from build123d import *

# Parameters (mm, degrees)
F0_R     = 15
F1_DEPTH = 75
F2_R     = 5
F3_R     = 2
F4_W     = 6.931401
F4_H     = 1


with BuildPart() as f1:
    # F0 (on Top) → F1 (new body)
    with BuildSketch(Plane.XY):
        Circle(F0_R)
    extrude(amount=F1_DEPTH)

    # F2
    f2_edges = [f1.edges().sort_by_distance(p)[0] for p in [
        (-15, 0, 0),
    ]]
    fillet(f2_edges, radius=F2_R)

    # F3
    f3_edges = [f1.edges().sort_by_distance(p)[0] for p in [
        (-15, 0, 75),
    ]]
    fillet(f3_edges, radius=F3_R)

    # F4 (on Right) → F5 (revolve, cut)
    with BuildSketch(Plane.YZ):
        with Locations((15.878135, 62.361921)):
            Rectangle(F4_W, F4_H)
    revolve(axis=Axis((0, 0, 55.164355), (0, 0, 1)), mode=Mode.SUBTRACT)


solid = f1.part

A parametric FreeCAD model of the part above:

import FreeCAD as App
import Part
import Sketcher
from FreeCAD import Vector


def edges_at(feature, points):
    """Names of the edges that pass closest to the given points."""
    edges = feature.Shape.Edges
    near = lambda p: min(range(len(edges)), key=lambda i: edges[i].distToShape(Part.Vertex(*p))[0])
    return sorted({f"Edge{near(p) + 1}" for p in points})

doc = App.newDocument("Part")
body = doc.addObject("PartDesign::Body", "Body")

# Sketch on XY plane
sketch1 = body.newObject("Sketcher::SketchObject", "Sketch")
sketch1.AttachmentSupport = (doc.getObject("XY_Plane"), [""])
sketch1.MapMode = "FlatFace"
sketch1.addGeometry(Part.Circle(Vector(0, 0, 0), Vector(0, 0, 1), 15), False)
sketch1.addConstraint(Sketcher.Constraint("Coincident", 0, 3, -1, 1))
sketch1.addConstraint(Sketcher.Constraint("Diameter", 0, 30.0))
pad1 = body.newObject("PartDesign::Pad", "Pad")
pad1.Profile = sketch1
pad1.Length = 75
doc.recompute()

fillet = body.newObject("PartDesign::Fillet", "Fillet")
fillet.Base = (pad1, edges_at(pad1, [(-15, 0, 0)]))
fillet.Radius = 5
doc.recompute()

fillet2 = body.newObject("PartDesign::Fillet", "Fillet001")
fillet2.Base = (fillet, edges_at(fillet, [(-15, 0, 75)]))
fillet2.Radius = 2

# Sketch on YZ plane
sketch2 = body.newObject("Sketcher::SketchObject", "Sketch001")
sketch2.AttachmentSupport = (doc.getObject("YZ_Plane"), [""])
sketch2.MapMode = "FlatFace"
sketch2.addGeometry(Part.LineSegment(Vector(12.4, 62.9, 0), Vector(12.4, 61.9, 0)), False)
sketch2.addGeometry(Part.LineSegment(Vector(12.4, 61.9, 0), Vector(19.3, 61.9, 0)), False)
sketch2.addGeometry(Part.LineSegment(Vector(19.3, 61.9, 0), Vector(19.3, 62.9, 0)), False)
sketch2.addGeometry(Part.LineSegment(Vector(19.3, 62.9, 0), Vector(12.4, 62.9, 0)), False)
sketch2.addConstraint(Sketcher.Constraint("Coincident", 0, 2, 1, 1))
sketch2.addConstraint(Sketcher.Constraint("Coincident", 1, 2, 2, 1))
sketch2.addConstraint(Sketcher.Constraint("Coincident", 2, 2, 3, 1))
sketch2.addConstraint(Sketcher.Constraint("Coincident", 3, 2, 0, 1))
sketch2.addConstraint(Sketcher.Constraint("Vertical", 0))
sketch2.addConstraint(Sketcher.Constraint("Horizontal", 1))
sketch2.addConstraint(Sketcher.Constraint("Vertical", 2))
sketch2.addConstraint(Sketcher.Constraint("Horizontal", 3))
sketch2.addConstraint(Sketcher.Constraint("DistanceY", 0, 2, 0, 1, 1.0))
sketch2.addConstraint(Sketcher.Constraint("DistanceX", 1, 1, 1, 2, 6.931401))
sketch2.addConstraint(Sketcher.Constraint("DistanceY", -1, 1, 0, 2, 61.861921))
sketch2.addConstraint(Sketcher.Constraint("DistanceX", -1, 1, 0, 2, 12.412434))
groove = body.newObject("PartDesign::Groove", "Groove")
groove.Profile = sketch2
groove.ReferenceAxis = (sketch2, ["V_Axis"])
groove.Angle = 360

doc.recompute()
